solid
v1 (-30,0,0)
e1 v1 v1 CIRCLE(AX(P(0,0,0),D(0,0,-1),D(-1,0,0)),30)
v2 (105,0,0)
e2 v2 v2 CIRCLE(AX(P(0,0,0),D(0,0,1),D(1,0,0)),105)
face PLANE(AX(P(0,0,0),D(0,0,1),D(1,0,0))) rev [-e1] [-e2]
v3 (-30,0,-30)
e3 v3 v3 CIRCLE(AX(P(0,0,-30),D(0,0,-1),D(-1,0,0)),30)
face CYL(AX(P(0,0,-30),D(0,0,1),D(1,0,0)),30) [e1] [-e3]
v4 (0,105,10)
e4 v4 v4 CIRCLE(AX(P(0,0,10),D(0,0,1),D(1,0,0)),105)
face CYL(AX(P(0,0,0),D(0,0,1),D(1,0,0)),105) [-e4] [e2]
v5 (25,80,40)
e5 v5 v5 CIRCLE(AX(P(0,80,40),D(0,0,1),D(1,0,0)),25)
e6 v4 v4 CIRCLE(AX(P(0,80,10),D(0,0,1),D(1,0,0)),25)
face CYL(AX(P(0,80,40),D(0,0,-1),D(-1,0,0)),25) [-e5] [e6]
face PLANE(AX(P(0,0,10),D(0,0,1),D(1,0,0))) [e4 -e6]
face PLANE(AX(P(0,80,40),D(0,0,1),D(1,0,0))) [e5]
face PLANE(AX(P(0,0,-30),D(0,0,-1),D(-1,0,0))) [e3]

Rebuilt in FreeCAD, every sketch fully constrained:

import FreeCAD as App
import Part
import Sketcher

V = App.Vector

doc = App.newDocument("Part")
body = doc.addObject("PartDesign::Body", "Body")

sketch1 = body.newObject("Sketcher::SketchObject", "Sketch")
sketch1.AttachmentSupport = (doc.getObject("XY_Plane"), [""])
sketch1.MapMode = "FlatFace"
sketch1.addGeometry(Part.Circle(V(0, 0, 0), V(0, 0, 1), 115), False)
sketch1.addConstraint([
    Sketcher.Constraint("Coincident", 0, 3, -1, 1),
    Sketcher.Constraint("Diameter", 0, 230.0),
])
pad1 = body.newObject("PartDesign::Pad", "Pad")
pad1.Profile = sketch1
pad1.Length = 10

sketch2 = body.newObject("Sketcher::SketchObject", "Sketch001")
sketch2.AttachmentSupport = (doc.getObject("XY_Plane"), [""])
sketch2.MapMode = "FlatFace"
sketch2.AttachmentOffset = App.Placement(V(0, 0, 10), App.Rotation())
sketch2.addGeometry(Part.Circle(V(0, 80, 0), V(0, 0, 1), 25), False)
sketch2.addConstraint([
    Sketcher.Constraint("PointOnObject", 0, 3, -2),
    Sketcher.Constraint("Diameter", 0, 50.0),
    Sketcher.Constraint("DistanceY", -1, 1, 0, 3, 80.0),
])
pad2 = body.newObject("PartDesign::Pad", "Pad001")
pad2.Profile = sketch2
pad2.Length = 30

sketch3 = body.newObject("Sketcher::SketchObject", "Sketch002")
sketch3.AttachmentSupport = (doc.getObject("XY_Plane"), [""])
sketch3.MapMode = "FlatFace"
sketch3.addGeometry(Part.Circle(V(0, 0, 0), V(0, 0, 1), 30), False)
sketch3.addConstraint([
    Sketcher.Constraint("Coincident", 0, 3, -1, 1),
    Sketcher.Constraint("Diameter", 0, 60.0),
])
pad3 = body.newObject("PartDesign::Pad", "Pad002")
pad3.Profile = sketch3
pad3.Length = 30
pad3.Reversed = True

sketch4 = body.newObject("Sketcher::SketchObject", "Sketch003")
sketch4.AttachmentSupport = (doc.getObject("XY_Plane"), [""])
sketch4.MapMode = "FlatFace"
sketch4.addGeometry([
    Part.Circle(V(0, 0, 0), V(0, 0, 1), 115),
    Part.Circle(V(0, 0, 0), V(0, 0, 1), 105),
], False)
sketch4.addConstraint([
    Sketcher.Constraint("Coincident", 0, 3, -1, 1),
    Sketcher.Constraint("Coincident", 1, 3, -1, 1),
    Sketcher.Constraint("Diameter", 0, 230.0),
    Sketcher.Constraint("Diameter", 1, 210.0),
])
pocket1 = body.newObject("PartDesign::Pocket", "Pocket")
pocket1.Profile = sketch4
pocket1.Length = 10
pocket1.Reversed = True

doc.recompute()
